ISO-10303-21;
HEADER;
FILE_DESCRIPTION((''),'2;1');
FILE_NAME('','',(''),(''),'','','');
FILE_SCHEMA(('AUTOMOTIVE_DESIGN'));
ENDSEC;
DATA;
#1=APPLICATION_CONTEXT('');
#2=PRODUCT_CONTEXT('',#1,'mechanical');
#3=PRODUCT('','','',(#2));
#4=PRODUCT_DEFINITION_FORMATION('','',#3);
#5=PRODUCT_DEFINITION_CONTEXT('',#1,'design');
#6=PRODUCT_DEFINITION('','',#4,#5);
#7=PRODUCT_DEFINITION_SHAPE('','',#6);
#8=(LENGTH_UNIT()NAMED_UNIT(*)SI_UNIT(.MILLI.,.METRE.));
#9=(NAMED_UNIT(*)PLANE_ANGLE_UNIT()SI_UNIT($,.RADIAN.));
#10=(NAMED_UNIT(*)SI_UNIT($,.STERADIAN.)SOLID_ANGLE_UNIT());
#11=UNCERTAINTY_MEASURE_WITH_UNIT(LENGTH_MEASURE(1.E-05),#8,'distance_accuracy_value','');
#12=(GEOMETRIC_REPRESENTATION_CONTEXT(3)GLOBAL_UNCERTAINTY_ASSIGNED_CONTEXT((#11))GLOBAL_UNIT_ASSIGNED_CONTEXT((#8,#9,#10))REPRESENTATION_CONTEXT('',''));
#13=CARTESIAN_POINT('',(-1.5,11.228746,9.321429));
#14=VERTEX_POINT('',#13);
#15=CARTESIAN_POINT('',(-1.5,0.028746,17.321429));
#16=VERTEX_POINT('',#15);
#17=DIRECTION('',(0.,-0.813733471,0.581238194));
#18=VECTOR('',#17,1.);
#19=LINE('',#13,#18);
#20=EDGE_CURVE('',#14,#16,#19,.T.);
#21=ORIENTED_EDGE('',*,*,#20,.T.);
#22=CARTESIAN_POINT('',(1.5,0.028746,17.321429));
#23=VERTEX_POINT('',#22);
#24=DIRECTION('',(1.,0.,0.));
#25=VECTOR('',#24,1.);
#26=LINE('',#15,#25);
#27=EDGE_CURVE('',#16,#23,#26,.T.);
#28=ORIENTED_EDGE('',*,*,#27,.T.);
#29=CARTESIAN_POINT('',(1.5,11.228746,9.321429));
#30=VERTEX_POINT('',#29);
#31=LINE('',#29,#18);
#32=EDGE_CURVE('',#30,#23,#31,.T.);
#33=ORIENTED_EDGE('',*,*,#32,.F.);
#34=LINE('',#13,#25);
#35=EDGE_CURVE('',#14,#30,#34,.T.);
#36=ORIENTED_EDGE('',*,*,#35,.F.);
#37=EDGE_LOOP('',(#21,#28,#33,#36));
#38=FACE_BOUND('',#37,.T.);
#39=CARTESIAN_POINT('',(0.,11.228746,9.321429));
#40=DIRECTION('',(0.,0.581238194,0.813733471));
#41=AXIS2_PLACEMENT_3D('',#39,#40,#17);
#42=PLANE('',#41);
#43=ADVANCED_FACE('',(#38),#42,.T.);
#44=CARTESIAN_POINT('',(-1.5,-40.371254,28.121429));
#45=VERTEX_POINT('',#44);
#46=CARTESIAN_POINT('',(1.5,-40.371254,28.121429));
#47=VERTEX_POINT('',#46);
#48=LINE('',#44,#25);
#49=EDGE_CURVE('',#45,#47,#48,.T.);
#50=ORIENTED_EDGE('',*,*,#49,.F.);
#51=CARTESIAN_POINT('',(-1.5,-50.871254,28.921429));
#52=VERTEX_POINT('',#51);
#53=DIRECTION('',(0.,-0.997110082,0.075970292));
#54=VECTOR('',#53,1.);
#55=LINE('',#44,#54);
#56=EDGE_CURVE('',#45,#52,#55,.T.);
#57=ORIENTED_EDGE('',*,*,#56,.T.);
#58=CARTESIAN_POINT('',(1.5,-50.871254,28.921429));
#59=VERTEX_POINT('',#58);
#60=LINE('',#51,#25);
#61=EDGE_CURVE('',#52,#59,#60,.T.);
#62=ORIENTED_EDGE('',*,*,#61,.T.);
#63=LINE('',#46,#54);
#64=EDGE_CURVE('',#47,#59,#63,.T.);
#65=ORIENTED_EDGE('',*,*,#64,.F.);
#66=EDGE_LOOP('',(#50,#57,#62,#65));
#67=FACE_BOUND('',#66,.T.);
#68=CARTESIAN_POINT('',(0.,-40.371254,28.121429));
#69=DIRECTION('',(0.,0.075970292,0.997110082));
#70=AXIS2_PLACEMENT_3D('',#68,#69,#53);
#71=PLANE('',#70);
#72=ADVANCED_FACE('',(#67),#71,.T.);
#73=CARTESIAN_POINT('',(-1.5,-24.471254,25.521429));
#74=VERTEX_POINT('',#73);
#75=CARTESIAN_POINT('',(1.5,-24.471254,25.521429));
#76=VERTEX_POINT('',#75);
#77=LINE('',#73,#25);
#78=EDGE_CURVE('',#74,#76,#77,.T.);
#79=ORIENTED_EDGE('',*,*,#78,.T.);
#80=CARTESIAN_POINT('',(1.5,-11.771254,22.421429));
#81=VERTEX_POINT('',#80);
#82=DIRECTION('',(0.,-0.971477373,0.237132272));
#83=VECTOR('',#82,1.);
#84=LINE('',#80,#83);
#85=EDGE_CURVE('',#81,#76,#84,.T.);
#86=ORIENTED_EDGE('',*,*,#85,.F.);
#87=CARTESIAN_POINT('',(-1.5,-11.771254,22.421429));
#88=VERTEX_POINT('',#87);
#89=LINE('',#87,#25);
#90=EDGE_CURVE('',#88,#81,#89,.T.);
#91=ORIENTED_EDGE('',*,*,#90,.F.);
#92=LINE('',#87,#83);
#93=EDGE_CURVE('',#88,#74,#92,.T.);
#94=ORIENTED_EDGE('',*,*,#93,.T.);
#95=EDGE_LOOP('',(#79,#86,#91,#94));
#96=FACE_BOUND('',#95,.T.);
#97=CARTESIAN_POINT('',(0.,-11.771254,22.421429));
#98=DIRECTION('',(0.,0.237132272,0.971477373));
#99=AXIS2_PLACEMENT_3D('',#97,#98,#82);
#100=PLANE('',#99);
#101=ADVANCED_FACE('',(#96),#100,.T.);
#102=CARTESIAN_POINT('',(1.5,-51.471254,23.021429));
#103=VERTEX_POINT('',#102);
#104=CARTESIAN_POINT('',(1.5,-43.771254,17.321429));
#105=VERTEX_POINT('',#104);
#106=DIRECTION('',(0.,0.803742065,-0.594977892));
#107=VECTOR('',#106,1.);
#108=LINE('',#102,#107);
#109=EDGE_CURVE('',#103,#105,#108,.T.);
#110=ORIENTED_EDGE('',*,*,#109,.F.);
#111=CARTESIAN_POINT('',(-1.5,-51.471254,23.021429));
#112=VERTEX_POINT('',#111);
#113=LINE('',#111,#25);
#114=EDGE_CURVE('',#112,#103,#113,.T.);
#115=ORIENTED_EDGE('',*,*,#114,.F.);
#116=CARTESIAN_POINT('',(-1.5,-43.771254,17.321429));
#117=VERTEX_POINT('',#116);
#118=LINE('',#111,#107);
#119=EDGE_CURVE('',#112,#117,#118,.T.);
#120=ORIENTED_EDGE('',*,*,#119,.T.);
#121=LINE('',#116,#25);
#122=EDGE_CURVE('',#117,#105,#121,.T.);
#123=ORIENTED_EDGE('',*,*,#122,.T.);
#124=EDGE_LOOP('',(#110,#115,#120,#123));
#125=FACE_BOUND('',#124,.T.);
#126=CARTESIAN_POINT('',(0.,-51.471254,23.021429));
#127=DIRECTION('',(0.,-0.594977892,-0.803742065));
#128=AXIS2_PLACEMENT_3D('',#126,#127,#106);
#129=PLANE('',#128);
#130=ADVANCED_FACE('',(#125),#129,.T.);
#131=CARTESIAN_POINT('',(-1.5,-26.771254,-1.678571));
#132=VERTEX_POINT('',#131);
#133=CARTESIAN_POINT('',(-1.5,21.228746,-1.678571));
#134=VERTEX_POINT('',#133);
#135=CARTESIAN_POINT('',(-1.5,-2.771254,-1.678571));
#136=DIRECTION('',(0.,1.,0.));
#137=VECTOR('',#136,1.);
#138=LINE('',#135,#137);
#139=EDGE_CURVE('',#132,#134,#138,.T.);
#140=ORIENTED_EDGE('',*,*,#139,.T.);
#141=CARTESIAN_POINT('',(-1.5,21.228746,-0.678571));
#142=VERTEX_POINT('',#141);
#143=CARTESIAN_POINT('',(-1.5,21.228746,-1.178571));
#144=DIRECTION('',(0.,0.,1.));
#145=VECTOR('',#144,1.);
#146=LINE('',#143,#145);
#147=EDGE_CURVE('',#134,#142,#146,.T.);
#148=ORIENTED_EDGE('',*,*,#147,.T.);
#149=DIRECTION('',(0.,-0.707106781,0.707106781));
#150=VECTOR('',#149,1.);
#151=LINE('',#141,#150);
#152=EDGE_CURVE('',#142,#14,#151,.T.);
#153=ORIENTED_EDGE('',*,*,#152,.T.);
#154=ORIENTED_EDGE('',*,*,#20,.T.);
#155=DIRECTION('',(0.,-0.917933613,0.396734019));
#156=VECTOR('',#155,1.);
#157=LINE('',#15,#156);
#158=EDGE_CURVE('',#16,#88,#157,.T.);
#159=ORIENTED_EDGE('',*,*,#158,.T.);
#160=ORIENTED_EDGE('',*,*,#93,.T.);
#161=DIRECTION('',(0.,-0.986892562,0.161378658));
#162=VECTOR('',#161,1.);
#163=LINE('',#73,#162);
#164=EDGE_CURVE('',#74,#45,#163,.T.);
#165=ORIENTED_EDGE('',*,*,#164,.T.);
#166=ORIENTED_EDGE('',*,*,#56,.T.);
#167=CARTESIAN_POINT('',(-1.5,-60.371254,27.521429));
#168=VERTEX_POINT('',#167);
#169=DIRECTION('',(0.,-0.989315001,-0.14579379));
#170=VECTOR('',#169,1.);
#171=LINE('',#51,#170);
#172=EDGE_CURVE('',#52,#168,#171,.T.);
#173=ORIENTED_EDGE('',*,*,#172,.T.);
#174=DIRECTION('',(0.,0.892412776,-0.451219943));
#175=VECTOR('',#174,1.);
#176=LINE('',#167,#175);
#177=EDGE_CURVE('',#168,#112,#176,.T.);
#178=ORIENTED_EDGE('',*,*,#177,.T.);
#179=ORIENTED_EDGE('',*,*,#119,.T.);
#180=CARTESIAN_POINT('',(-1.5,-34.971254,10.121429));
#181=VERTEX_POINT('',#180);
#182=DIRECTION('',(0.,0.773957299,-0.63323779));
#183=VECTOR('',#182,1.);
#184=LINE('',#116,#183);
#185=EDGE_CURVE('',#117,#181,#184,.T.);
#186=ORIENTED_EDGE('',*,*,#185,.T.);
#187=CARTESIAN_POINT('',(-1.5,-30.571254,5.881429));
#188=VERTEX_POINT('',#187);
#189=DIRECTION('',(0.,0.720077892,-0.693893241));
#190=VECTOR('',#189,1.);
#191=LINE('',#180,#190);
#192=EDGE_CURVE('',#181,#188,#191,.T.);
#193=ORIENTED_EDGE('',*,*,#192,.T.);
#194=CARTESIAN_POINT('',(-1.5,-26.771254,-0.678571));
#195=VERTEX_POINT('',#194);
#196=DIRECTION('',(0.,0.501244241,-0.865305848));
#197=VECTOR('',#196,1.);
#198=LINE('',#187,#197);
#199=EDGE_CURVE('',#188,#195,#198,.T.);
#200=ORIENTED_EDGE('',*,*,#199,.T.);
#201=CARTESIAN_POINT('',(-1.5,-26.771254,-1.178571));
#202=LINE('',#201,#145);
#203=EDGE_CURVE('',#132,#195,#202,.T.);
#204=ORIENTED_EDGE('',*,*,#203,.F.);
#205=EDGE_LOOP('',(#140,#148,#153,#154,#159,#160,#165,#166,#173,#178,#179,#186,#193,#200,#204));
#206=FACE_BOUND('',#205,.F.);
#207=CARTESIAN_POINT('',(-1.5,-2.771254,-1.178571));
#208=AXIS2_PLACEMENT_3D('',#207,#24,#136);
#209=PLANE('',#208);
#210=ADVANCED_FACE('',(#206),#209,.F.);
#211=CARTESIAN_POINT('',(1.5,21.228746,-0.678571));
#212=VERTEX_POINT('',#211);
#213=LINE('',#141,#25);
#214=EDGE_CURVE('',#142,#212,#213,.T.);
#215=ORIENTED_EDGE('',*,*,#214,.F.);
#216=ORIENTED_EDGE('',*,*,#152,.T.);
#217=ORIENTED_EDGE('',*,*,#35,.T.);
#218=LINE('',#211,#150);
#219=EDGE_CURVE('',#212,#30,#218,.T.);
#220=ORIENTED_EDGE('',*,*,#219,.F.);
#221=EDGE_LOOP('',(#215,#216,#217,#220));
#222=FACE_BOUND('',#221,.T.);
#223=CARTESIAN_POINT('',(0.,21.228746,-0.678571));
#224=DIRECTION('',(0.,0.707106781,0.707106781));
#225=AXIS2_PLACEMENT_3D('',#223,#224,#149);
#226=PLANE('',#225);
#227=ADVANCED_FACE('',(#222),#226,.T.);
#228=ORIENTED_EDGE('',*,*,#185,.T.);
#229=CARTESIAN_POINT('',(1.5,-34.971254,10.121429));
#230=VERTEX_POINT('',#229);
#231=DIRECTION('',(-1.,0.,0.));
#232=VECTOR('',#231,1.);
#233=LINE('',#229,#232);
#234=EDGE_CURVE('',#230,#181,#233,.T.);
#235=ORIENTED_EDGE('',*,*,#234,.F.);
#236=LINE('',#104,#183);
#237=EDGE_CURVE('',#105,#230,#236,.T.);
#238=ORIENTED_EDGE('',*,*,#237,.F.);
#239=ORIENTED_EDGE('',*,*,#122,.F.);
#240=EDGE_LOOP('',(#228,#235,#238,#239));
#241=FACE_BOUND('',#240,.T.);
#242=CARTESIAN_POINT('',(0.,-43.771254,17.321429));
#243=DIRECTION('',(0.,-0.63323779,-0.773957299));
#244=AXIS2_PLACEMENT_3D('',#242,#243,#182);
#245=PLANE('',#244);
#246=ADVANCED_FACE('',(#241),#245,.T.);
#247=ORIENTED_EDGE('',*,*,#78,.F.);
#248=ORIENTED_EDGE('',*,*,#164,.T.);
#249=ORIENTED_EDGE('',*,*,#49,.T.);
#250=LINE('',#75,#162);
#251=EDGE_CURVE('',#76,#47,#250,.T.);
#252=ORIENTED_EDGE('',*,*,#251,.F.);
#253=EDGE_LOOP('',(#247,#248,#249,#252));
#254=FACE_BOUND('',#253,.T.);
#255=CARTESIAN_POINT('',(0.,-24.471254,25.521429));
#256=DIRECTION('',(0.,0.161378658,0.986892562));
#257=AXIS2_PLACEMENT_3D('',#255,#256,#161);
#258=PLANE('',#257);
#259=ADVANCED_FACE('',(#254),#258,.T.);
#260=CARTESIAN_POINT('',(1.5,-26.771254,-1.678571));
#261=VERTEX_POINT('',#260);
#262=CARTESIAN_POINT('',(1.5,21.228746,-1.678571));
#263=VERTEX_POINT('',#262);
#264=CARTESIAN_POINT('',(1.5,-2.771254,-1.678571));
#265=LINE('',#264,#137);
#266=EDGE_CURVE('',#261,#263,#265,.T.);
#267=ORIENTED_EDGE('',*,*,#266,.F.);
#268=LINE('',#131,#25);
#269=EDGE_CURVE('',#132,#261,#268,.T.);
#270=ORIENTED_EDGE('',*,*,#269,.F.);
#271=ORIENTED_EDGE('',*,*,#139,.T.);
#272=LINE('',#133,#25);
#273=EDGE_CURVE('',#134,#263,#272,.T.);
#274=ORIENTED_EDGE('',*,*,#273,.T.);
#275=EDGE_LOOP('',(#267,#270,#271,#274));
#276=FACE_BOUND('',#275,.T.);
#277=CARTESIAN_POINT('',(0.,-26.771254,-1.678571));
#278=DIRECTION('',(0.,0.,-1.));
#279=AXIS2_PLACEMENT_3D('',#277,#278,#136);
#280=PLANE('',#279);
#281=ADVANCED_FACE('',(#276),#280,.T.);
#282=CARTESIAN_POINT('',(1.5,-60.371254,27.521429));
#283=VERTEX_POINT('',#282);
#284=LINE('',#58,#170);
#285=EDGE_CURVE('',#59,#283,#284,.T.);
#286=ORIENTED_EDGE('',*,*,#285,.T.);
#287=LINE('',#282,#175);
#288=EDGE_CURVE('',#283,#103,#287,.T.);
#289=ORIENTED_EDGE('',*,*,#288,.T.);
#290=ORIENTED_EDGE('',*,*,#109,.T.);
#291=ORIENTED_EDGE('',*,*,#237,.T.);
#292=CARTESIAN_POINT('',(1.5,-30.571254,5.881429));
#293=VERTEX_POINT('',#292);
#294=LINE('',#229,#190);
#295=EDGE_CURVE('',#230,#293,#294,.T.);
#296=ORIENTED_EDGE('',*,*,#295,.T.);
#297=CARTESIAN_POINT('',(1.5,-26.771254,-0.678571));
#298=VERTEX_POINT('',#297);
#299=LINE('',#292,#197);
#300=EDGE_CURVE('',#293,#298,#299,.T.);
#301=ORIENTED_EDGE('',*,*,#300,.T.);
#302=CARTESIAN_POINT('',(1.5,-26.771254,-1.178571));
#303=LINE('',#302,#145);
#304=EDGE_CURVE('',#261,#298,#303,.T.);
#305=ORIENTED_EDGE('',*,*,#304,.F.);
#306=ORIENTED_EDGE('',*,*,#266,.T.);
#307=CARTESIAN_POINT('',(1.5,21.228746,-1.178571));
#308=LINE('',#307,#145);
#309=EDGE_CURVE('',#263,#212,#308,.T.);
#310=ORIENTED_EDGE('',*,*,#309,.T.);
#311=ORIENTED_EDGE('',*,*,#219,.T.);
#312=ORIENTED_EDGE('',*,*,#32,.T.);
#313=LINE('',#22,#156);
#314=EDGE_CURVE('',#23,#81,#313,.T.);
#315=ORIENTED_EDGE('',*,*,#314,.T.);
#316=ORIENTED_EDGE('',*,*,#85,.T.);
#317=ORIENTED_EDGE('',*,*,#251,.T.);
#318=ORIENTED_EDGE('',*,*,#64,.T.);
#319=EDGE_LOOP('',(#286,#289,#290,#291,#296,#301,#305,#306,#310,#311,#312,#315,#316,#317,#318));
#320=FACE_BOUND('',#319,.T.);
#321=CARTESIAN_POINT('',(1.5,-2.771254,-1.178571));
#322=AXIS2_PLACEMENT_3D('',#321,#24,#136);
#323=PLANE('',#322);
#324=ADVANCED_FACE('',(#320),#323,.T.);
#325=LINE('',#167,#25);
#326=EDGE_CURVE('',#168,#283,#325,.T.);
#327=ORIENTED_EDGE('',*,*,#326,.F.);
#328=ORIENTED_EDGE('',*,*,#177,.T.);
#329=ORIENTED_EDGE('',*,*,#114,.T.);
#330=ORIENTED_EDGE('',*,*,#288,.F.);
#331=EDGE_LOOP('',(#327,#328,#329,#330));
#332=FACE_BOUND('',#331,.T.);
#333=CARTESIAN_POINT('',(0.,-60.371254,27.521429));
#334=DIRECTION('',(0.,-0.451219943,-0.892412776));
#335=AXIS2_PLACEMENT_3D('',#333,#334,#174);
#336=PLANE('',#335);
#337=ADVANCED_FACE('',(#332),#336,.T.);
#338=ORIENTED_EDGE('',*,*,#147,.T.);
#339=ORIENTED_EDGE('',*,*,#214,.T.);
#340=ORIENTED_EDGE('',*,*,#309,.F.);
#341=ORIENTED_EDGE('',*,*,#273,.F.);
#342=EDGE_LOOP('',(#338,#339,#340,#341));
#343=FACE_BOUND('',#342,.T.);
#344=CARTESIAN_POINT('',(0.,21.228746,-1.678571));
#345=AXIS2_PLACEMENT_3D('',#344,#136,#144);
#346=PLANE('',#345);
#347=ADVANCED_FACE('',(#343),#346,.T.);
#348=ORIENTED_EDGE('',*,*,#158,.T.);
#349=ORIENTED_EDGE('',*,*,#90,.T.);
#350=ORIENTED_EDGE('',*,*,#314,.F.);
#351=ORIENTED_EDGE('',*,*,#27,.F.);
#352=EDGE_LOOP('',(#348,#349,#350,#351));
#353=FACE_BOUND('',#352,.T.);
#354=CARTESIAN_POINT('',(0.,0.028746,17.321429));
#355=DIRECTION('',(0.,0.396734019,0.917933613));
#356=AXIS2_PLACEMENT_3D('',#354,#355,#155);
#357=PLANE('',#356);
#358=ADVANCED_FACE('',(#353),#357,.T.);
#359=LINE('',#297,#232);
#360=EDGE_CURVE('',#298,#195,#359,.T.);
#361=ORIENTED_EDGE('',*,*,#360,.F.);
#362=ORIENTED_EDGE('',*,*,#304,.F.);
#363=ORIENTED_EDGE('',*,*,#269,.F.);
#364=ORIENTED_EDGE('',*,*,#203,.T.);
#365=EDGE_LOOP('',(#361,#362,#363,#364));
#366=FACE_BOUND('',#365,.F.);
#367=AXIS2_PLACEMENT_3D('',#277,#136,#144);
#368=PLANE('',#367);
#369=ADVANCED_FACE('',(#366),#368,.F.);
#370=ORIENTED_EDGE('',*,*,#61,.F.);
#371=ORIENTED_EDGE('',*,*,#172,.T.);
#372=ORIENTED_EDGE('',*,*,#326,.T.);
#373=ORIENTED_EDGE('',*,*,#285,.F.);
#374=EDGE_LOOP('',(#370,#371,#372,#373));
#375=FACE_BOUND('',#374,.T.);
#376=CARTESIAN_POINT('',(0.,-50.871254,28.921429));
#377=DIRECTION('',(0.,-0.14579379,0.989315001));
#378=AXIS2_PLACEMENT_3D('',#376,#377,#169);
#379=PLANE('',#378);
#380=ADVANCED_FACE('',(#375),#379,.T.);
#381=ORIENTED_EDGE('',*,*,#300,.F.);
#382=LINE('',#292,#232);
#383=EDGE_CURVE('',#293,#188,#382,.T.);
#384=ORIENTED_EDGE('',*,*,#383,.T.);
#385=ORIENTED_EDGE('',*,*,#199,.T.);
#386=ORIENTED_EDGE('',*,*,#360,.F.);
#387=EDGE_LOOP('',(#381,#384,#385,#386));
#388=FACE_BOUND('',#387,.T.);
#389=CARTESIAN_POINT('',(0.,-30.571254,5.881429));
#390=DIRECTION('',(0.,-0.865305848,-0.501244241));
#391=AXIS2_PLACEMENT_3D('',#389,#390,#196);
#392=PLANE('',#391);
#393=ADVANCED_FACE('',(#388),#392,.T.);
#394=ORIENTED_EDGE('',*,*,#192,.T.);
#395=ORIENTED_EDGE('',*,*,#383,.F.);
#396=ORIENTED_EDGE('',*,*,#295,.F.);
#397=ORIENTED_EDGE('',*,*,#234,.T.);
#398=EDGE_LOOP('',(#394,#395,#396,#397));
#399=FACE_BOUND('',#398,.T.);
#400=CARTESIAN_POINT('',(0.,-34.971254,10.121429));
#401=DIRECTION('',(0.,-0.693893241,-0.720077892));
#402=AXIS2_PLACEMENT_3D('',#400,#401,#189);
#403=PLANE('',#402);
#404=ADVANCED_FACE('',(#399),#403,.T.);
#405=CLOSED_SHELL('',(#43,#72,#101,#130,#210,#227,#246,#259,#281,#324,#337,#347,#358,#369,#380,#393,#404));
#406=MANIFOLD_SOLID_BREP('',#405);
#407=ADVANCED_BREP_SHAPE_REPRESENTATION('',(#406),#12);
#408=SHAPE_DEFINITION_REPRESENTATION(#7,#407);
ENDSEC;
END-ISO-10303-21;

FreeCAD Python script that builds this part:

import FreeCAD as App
import Part
import Sketcher
Q = App.Units.Quantity

doc = App.newDocument("Part")
params = doc.addObject("Spreadsheet::Sheet", "Params")
for row, (alias, value) in enumerate([
    ("sketch1_width", "48 mm"),
    ("sketch1_height", "1 mm"),
    ("pad1_length", "3 mm"),
], start=1):
    params.set(f"A{row}", alias)
    params.set(f"B{row}", "=" + value)
    params.setAlias(f"B{row}", alias)

body = doc.addObject("PartDesign::Body", "Body")

# Sketch on YZ plane
sketch1 = body.newObject("Sketcher::SketchObject", "Sketch")
sketch1.AttachmentSupport = (doc.getObject("YZ_Plane"), [""])
sketch1.MapMode = "FlatFace"
sketch1.addGeometry([
    Part.LineSegment(App.Vector(-26.8, -0.7, 0), App.Vector(-26.8, -1.7, 0)),  # 0
    Part.LineSegment(App.Vector(-26.8, -1.7, 0), App.Vector(21.2, -1.7, 0)),  # 1
    Part.LineSegment(App.Vector(21.2, -1.7, 0), App.Vector(21.2, -0.7, 0)),  # 2
    Part.LineSegment(App.Vector(21.2, -0.7, 0), App.Vector(11.2, 9.3, 0)),  # 3
    Part.LineSegment(App.Vector(11.2, 9.3, 0), App.Vector(0, 17.3, 0)),  # 4
    Part.LineSegment(App.Vector(0, 17.3, 0), App.Vector(-11.8, 22.4, 0)),  # 5
    Part.LineSegment(App.Vector(-11.8, 22.4, 0), App.Vector(-24.5, 25.5, 0)),  # 6
    Part.LineSegment(App.Vector(-24.5, 25.5, 0), App.Vector(-40.4, 28.1, 0)),  # 7
    Part.LineSegment(App.Vector(-40.4, 28.1, 0), App.Vector(-50.9, 28.9, 0)),  # 8
    Part.LineSegment(App.Vector(-50.9, 28.9, 0), App.Vector(-60.4, 27.5, 0)),  # 9
    Part.LineSegment(App.Vector(-60.4, 27.5, 0), App.Vector(-51.5, 23, 0)),  # 10
    Part.LineSegment(App.Vector(-51.5, 23, 0), App.Vector(-43.8, 17.3, 0)),  # 11
    Part.LineSegment(App.Vector(-43.8, 17.3, 0), App.Vector(-35, 10.1, 0)),  # 12
    Part.LineSegment(App.Vector(-35, 10.1, 0), App.Vector(-30.6, 5.9, 0)),  # 13
    Part.LineSegment(App.Vector(-30.6, 5.9, 0), App.Vector(-26.8, -0.7, 0)),  # 14
], False)
sketch1.addConstraint([
    Sketcher.Constraint("Coincident", 0, 2, 1, 1),
    Sketcher.Constraint("Coincident", 1, 2, 2, 1),
    Sketcher.Constraint("Coincident", 2, 2, 3, 1),
    Sketcher.Constraint("Coincident", 3, 2, 4, 1),
    Sketcher.Constraint("Coincident", 4, 2, 5, 1),
    Sketcher.Constraint("Coincident", 5, 2, 6, 1),
    Sketcher.Constraint("Coincident", 6, 2, 7, 1),
    Sketcher.Constraint("Coincident", 7, 2, 8, 1),
    Sketcher.Constraint("Coincident", 8, 2, 9, 1),
    Sketcher.Constraint("Coincident", 9, 2, 10, 1),
    Sketcher.Constraint("Coincident", 10, 2, 11, 1),
    Sketcher.Constraint("Coincident", 11, 2, 12, 1),
    Sketcher.Constraint("Coincident", 12, 2, 13, 1),
    Sketcher.Constraint("Coincident", 13, 2, 14, 1),
    Sketcher.Constraint("Coincident", 14, 2, 0, 1),
    Sketcher.Constraint("Vertical", 0),
    Sketcher.Constraint("Horizontal", 1),
    Sketcher.Constraint("Vertical", 2),
    Sketcher.Constraint("Horizontal", 4, 2, 11, 2),
    Sketcher.Constraint("Horizontal", 2, 2, 14, 2),
    Sketcher.Constraint("DistanceX", 1, 1, 1, 2, 48.0),
    Sketcher.Constraint("DistanceY", 0, 2, 0, 1, 1.0),
    Sketcher.Constraint("Angle", 3, Q("135 deg")),
    Sketcher.Constraint("DistanceX", 3, 2, 2, 2, 10.0),
    Sketcher.Constraint("DistanceY", 3, 2, 4, 2, 8.0),
    Sketcher.Constraint("DistanceX", 5, 2, 3, 2, 23.0),
    Sketcher.Constraint("DistanceX", 9, 2, 7, 2, 20.0),
    Sketcher.Constraint("DistanceY", 6, 2, 9, 2, 2.0),
    Sketcher.Constraint("DistanceX", 10, 2, 6, 2, 27.0),
    Sketcher.Constraint("DistanceY", 12, 2, 7, 2, 18.0),
    Sketcher.Constraint("DistanceX", 11, 2, 14, 2, 17.0),
    Sketcher.Constraint("DistanceX", 4, 2, 3, 2, 11.2),
    Sketcher.Constraint("DistanceY", 4, 2, 5, 2, 5.1),
    Sketcher.Constraint("DistanceX", 6, 2, 5, 2, 12.7),
    Sketcher.Constraint("DistanceY", 5, 2, 6, 2, 3.1),
    Sketcher.Constraint("DistanceX", 7, 2, 6, 2, 15.9),
    Sketcher.Constraint("DistanceY", 6, 2, 7, 2, 2.6),
    Sketcher.Constraint("DistanceX", 8, 2, 7, 2, 10.5),
    Sketcher.Constraint("DistanceY", 7, 2, 8, 2, 0.8),
    Sketcher.Constraint("DistanceY", 10, 2, 8, 2, 5.9),
    Sketcher.Constraint("DistanceX", 11, 2, 12, 2, 8.8),
    Sketcher.Constraint("DistanceX", 12, 2, 13, 2, 4.4),
    Sketcher.Constraint("DistanceY", 13, 2, 12, 2, 4.24),
    Sketcher.Constraint("DistanceY", 0, 2, -1, 1, 1.678571),
    Sketcher.Constraint("DistanceX", 0, 2, -1, 1, 26.771254),
])
sketch1.setExpression("Constraints[20]", "Params.sketch1_width")
sketch1.setExpression("Constraints[21]", "Params.sketch1_height")
pad1 = body.newObject("PartDesign::Pad", "Pad")
pad1.Profile = sketch1
pad1.setExpression("Length", "Params.pad1_length")
pad1.Midplane = True

doc.recompute()
